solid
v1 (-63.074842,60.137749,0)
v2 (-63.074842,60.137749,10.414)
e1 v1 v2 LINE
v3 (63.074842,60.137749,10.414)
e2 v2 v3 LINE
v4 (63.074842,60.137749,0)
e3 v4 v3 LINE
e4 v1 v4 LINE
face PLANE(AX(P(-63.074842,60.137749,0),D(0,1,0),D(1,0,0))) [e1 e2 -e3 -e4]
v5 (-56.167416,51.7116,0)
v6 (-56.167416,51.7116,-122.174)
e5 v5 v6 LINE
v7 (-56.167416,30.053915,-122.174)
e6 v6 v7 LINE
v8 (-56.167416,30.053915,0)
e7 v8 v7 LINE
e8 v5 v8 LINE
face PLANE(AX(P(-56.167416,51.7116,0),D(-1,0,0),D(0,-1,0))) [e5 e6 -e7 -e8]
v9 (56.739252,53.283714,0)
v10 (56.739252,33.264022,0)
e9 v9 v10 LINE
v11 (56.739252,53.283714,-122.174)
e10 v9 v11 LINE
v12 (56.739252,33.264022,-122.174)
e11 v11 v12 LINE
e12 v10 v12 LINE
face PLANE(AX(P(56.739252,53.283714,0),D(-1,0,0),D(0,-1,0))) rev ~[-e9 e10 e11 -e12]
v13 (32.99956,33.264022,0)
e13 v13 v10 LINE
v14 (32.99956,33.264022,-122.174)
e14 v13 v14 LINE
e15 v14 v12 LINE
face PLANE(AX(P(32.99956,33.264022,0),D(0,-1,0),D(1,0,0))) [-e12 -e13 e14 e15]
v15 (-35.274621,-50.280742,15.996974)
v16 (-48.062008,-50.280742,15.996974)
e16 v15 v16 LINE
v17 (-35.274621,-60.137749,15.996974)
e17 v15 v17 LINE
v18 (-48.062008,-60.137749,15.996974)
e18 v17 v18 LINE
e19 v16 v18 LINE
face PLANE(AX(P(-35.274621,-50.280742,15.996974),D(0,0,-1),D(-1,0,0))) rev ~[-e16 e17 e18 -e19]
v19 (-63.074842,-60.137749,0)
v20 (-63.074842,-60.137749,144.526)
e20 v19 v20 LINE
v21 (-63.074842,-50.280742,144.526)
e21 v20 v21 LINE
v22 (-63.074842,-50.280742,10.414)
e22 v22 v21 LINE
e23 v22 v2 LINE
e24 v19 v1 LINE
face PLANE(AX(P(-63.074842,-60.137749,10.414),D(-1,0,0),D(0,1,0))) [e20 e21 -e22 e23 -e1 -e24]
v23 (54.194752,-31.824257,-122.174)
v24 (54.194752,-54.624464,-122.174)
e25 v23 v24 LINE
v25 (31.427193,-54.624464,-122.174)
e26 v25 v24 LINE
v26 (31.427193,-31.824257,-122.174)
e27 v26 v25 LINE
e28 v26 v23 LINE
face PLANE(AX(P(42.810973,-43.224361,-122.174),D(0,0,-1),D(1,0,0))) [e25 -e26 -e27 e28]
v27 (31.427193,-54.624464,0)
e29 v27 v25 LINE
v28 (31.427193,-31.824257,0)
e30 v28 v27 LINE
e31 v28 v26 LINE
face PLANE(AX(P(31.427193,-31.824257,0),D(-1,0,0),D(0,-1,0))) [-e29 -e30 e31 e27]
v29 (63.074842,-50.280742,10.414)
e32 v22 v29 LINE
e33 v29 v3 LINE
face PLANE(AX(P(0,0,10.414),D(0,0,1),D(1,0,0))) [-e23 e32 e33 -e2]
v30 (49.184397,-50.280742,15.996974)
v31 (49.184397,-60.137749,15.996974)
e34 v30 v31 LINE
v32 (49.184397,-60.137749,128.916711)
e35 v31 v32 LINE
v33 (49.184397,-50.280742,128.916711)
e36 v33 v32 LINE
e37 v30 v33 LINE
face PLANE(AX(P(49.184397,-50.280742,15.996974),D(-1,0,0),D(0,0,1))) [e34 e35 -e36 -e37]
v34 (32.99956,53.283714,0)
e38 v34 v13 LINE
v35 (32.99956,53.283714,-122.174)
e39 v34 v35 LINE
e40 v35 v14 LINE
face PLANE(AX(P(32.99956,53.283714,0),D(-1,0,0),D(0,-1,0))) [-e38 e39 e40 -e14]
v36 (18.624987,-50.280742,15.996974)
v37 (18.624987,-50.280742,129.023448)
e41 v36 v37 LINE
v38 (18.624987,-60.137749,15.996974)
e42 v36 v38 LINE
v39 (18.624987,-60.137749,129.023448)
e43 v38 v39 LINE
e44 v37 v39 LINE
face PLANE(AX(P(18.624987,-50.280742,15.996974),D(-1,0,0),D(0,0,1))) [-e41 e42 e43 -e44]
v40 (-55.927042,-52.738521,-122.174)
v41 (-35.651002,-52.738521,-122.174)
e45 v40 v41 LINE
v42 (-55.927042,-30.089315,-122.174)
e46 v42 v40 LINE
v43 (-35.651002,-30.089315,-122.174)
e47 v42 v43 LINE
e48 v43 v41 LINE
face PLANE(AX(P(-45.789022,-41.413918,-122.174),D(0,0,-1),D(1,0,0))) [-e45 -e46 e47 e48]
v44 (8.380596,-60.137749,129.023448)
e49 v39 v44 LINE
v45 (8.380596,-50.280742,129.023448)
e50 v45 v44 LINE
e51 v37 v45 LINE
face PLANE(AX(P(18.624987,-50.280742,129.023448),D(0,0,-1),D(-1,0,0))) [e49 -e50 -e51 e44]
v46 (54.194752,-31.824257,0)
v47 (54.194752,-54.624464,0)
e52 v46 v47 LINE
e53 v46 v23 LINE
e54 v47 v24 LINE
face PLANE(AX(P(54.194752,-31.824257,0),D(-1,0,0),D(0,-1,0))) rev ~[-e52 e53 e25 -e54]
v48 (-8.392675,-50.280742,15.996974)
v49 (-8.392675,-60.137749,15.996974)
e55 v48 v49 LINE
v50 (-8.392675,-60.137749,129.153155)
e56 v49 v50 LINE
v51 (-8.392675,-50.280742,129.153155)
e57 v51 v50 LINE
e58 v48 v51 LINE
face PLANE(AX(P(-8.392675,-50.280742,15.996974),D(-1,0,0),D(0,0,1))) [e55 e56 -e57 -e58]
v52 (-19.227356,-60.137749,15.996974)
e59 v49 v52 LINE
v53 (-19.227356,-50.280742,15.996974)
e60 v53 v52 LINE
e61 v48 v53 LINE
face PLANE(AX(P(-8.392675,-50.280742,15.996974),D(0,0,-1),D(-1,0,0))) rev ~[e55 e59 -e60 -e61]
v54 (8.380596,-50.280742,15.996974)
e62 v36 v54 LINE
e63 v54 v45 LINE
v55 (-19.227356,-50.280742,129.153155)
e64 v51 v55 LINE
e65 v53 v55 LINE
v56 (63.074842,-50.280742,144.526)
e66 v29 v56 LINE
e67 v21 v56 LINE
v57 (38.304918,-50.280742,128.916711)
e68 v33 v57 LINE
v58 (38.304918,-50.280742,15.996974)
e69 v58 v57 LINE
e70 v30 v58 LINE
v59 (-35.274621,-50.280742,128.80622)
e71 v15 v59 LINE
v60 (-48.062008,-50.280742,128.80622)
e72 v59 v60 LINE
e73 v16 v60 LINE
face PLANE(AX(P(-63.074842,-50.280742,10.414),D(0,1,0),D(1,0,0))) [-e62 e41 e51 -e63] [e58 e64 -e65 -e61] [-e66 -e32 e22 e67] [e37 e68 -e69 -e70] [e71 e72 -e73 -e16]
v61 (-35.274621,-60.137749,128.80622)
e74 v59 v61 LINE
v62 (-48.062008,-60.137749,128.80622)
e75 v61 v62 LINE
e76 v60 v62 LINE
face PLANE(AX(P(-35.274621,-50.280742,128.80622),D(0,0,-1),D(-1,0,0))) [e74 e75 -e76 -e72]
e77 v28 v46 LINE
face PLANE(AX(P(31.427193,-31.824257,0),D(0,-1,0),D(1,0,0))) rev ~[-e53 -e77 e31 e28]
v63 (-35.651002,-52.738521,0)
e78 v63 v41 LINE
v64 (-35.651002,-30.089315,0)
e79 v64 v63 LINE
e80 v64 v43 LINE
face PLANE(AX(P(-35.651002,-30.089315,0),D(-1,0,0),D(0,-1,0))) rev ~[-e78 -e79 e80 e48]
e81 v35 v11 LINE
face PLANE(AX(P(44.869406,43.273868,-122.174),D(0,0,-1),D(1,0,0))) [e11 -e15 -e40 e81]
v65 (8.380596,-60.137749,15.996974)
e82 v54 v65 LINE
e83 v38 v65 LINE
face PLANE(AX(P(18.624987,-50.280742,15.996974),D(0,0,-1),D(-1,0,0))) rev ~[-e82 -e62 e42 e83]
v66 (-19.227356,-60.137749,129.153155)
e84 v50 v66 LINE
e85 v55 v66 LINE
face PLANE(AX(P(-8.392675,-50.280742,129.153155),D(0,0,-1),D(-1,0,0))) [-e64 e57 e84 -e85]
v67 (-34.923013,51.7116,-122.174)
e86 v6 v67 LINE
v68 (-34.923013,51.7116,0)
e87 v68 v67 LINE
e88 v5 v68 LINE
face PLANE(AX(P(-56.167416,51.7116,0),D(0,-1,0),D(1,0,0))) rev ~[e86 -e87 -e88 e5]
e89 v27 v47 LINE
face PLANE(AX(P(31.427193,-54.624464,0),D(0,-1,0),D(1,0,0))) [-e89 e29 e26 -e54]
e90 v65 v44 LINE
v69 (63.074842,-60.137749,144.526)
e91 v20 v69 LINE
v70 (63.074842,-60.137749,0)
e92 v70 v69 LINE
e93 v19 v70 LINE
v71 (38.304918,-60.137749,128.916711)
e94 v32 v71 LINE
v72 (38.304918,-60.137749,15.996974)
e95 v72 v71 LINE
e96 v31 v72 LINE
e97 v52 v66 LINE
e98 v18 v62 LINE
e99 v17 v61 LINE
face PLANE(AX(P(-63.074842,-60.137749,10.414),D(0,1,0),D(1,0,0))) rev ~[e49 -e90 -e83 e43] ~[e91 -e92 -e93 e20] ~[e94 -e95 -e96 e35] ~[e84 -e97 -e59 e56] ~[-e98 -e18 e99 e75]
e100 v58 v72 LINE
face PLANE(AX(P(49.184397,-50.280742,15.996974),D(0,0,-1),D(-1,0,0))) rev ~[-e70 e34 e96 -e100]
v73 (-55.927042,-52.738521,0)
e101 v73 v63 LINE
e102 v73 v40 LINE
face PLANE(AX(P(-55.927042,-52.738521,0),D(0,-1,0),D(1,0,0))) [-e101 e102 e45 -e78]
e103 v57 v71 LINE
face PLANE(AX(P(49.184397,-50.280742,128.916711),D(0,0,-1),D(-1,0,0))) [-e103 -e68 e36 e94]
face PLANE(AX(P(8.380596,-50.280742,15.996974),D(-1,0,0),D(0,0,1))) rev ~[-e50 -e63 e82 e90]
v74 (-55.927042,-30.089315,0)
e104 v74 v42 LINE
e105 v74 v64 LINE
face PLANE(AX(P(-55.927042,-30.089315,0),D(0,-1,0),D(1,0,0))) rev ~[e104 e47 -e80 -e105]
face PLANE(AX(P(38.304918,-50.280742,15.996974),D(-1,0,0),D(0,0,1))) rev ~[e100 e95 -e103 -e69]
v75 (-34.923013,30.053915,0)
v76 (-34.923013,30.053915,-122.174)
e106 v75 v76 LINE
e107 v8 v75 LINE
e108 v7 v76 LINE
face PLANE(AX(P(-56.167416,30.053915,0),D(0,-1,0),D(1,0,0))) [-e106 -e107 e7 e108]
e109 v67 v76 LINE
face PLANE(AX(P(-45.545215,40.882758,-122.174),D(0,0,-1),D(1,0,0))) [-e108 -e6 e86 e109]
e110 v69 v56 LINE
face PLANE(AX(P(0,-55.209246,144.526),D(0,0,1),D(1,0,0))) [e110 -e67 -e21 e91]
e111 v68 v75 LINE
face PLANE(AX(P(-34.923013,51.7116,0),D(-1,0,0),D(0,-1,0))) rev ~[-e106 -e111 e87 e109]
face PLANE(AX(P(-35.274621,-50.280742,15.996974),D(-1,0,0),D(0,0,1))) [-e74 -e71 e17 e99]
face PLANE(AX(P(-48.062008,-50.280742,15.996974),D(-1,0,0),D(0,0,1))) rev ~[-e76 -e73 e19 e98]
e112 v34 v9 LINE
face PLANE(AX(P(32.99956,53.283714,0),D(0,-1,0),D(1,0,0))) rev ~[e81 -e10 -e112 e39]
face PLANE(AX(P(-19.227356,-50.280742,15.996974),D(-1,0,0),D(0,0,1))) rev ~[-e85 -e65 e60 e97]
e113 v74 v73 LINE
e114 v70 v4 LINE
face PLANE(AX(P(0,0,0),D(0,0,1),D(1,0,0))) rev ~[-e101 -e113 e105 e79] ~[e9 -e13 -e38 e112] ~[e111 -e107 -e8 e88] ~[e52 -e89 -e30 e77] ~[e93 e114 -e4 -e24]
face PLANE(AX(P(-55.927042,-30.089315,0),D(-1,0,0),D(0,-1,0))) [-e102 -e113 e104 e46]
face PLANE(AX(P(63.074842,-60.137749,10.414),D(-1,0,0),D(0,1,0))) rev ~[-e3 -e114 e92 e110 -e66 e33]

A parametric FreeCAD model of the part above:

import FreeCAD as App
import Part
import Sketcher
from FreeCAD import Vector
Q = App.Units.Quantity

doc = App.newDocument("Part")
body = doc.addObject("PartDesign::Body", "Body")

# Sketch on XY plane
sketch1 = doc.addObject("Sketcher::SketchObject", "Sketch")
body.addObject(sketch1)
sketch1.AttachmentSupport = (doc.XY_Plane, [""])
sketch1.MapMode = "FlatFace"
sketch1.addGeometry(Part.LineSegment(Vector(-63, 60, 0), Vector(-63, -60, 0)), False)
sketch1.addGeometry(Part.LineSegment(Vector(-63, -60, 0), Vector(63, -60, 0)), False)
sketch1.addGeometry(Part.LineSegment(Vector(63, -60, 0), Vector(63, 60, 0)), False)
sketch1.addGeometry(Part.LineSegment(Vector(63, 60, 0), Vector(-63, 60, 0)), False)
sketch1.addConstraint(Sketcher.Constraint("Coincident", 0, 2, 1, 1))
sketch1.addConstraint(Sketcher.Constraint("Coincident", 1, 2, 2, 1))
sketch1.addConstraint(Sketcher.Constraint("Coincident", 2, 2, 3, 1))
sketch1.addConstraint(Sketcher.Constraint("Coincident", 3, 2, 0, 1))
sketch1.addConstraint(Sketcher.Constraint("Vertical", 0))
sketch1.addConstraint(Sketcher.Constraint("Horizontal", 1))
sketch1.addConstraint(Sketcher.Constraint("Vertical", 2))
sketch1.addConstraint(Sketcher.Constraint("Horizontal", 3))
sketch1.addConstraint(Sketcher.Constraint("Symmetric", 0, 2, 2, 2, -1, 1))
sketch1.addConstraint(Sketcher.Constraint("DistanceX", 1, 1, 1, 2, Q("126.149684 mm")))
sketch1.addConstraint(Sketcher.Constraint("DistanceY", 0, 2, 0, 1, Q("120.275497 mm")))
pad1 = doc.addObject("PartDesign::Pad", "Pad")
body.addObject(pad1)
pad1.Profile = sketch1
pad1.Length = Q("0.41 in")

# Sketch on XY plane
sketch2 = doc.addObject("Sketcher::SketchObject", "Sketch001")
body.addObject(sketch2)
sketch2.AttachmentSupport = (doc.XY_Plane, [""])
sketch2.MapMode = "FlatFace"
sketch2.addGeometry(Part.LineSegment(Vector(-56, -53, 0), Vector(-56, -30, 0)), False)
sketch2.addGeometry(Part.LineSegment(Vector(-56, -30, 0), Vector(-36, -30, 0)), False)
sketch2.addGeometry(Part.LineSegment(Vector(-36, -30, 0), Vector(-36, -53, 0)), False)
sketch2.addGeometry(Part.LineSegment(Vector(-36, -53, 0), Vector(-56, -53, 0)), False)
sketch2.addConstraint(Sketcher.Constraint("Coincident", 0, 2, 1, 1))
sketch2.addConstraint(Sketcher.Constraint("Coincident", 1, 2, 2, 1))
sketch2.addConstraint(Sketcher.Constraint("Coincident", 2, 2, 3, 1))
sketch2.addConstraint(Sketcher.Constraint("Coincident", 3, 2, 0, 1))
sketch2.addConstraint(Sketcher.Constraint("Vertical", 0))
sketch2.addConstraint(Sketcher.Constraint("Horizontal", 1))
sketch2.addConstraint(Sketcher.Constraint("Vertical", 2))
sketch2.addConstraint(Sketcher.Constraint("Horizontal", 3))
sketch2.addConstraint(Sketcher.Constraint("DistanceX", 1, 1, 1, 2, Q("20.27604 mm")))
sketch2.addConstraint(Sketcher.Constraint("DistanceY", 0, 1, 0, 2, Q("22.649206 mm")))
sketch2.addConstraint(Sketcher.Constraint("DistanceX", 0, 2, -1, 1, Q("55.927042 mm")))
sketch2.addConstraint(Sketcher.Constraint("DistanceY", 2, 2, -1, 1, Q("52.738521 mm")))
pad2 = doc.addObject("PartDesign::Pad", "Pad001")
body.addObject(pad2)
pad2.Profile = sketch2
pad2.Length = Q("4.81 in")
pad2.Reversed = True

# Sketch on XY plane
sketch3 = doc.addObject("Sketcher::SketchObject", "Sketch002")
body.addObject(sketch3)
sketch3.AttachmentSupport = (doc.XY_Plane, [""])
sketch3.MapMode = "FlatFace"
sketch3.addGeometry(Part.LineSegment(Vector(31, -55, 0), Vector(31, -32, 0)), False)
sketch3.addGeometry(Part.LineSegment(Vector(31, -32, 0), Vector(54, -32, 0)), False)
sketch3.addGeometry(Part.LineSegment(Vector(54, -32, 0), Vector(54, -55, 0)), False)
sketch3.addGeometry(Part.LineSegment(Vector(54, -55, 0), Vector(31, -55, 0)), False)
sketch3.addConstraint(Sketcher.Constraint("Coincident", 0, 2, 1, 1))
sketch3.addConstraint(Sketcher.Constraint("Coincident", 1, 2, 2, 1))
sketch3.addConstraint(Sketcher.Constraint("Coincident", 2, 2, 3, 1))
sketch3.addConstraint(Sketcher.Constraint("Coincident", 3, 2, 0, 1))
sketch3.addConstraint(Sketcher.Constraint("Vertical", 0))
sketch3.addConstraint(Sketcher.Constraint("Horizontal", 1))
sketch3.addConstraint(Sketcher.Constraint("Vertical", 2))
sketch3.addConstraint(Sketcher.Constraint("Horizontal", 3))
sketch3.addConstraint(Sketcher.Constraint("DistanceX", 1, 1, 1, 2, Q("22.767559 mm")))
sketch3.addConstraint(Sketcher.Constraint("DistanceY", 0, 1, 0, 2, Q("22.800207 mm")))
sketch3.addConstraint(Sketcher.Constraint("DistanceX", -1, 1, 0, 2, Q("31.427193 mm")))
sketch3.addConstraint(Sketcher.Constraint("DistanceY", 0, 2, -1, 1, Q("31.824257 mm")))
pad3 = doc.addObject("PartDesign::Pad", "Pad002")
body.addObject(pad3)
pad3.Profile = sketch3
pad3.Length = Q("4.81 in")
pad3.Reversed = True

# Sketch on XY plane
sketch4 = doc.addObject("Sketcher::SketchObject", "Sketch003")
body.addObject(sketch4)
sketch4.AttachmentSupport = (doc.XY_Plane, [""])
sketch4.MapMode = "FlatFace"
sketch4.addGeometry(Part.LineSegment(Vector(33, 33, 0), Vector(33, 53, 0)), False)
sketch4.addGeometry(Part.LineSegment(Vector(33, 53, 0), Vector(57, 53, 0)), False)
sketch4.addGeometry(Part.LineSegment(Vector(57, 53, 0), Vector(57, 33, 0)), False)
sketch4.addGeometry(Part.LineSegment(Vector(57, 33, 0), Vector(33, 33, 0)), False)
sketch4.addConstraint(Sketcher.Constraint("Coincident", 0, 2, 1, 1))
sketch4.addConstraint(Sketcher.Constraint("Coincident", 1, 2, 2, 1))
sketch4.addConstraint(Sketcher.Constraint("Coincident", 2, 2, 3, 1))
sketch4.addConstraint(Sketcher.Constraint("Coincident", 3, 2, 0, 1))
sketch4.addConstraint(Sketcher.Constraint("Vertical", 0))
sketch4.addConstraint(Sketcher.Constraint("Horizontal", 1))
sketch4.addConstraint(Sketcher.Constraint("Vertical", 2))
sketch4.addConstraint(Sketcher.Constraint("Horizontal", 3))
sketch4.addConstraint(Sketcher.Constraint("DistanceX", 1, 1, 1, 2, Q("23.739692 mm")))
sketch4.addConstraint(Sketcher.Constraint("DistanceY", 0, 1, 0, 2, Q("20.019691 mm")))
sketch4.addConstraint(Sketcher.Constraint("DistanceX", -1, 1, 0, 2, Q("32.99956 mm")))
sketch4.addConstraint(Sketcher.Constraint("DistanceY", -1, 1, 0, 2, Q("53.283714 mm")))
pad4 = doc.addObject("PartDesign::Pad", "Pad003")
body.addObject(pad4)
pad4.Profile = sketch4
pad4.Length = Q("4.81 in")
pad4.Reversed = True

# Sketch on XY plane
sketch5 = doc.addObject("Sketcher::SketchObject", "Sketch004")
body.addObject(sketch5)
sketch5.AttachmentSupport = (doc.XY_Plane, [""])
sketch5.MapMode = "FlatFace"
sketch5.addGeometry(Part.LineSegment(Vector(-56, 30, 0), Vector(-56, 52, 0)), False)
sketch5.addGeometry(Part.LineSegment(Vector(-56, 52, 0), Vector(-35, 52, 0)), False)
sketch5.addGeometry(Part.LineSegment(Vector(-35, 52, 0), Vector(-35, 30, 0)), False)
sketch5.addGeometry(Part.LineSegment(Vector(-35, 30, 0), Vector(-56, 30, 0)), False)
sketch5.addConstraint(Sketcher.Constraint("Coincident", 0, 2, 1, 1))
sketch5.addConstraint(Sketcher.Constraint("Coincident", 1, 2, 2, 1))
sketch5.addConstraint(Sketcher.Constraint("Coincident", 2, 2, 3, 1))
sketch5.addConstraint(Sketcher.Constraint("Coincident", 3, 2, 0, 1))
sketch5.addConstraint(Sketcher.Constraint("Vertical", 0))
sketch5.addConstraint(Sketcher.Constraint("Horizontal", 1))
sketch5.addConstraint(Sketcher.Constraint("Vertical", 2))
sketch5.addConstraint(Sketcher.Constraint("Horizontal", 3))
sketch5.addConstraint(Sketcher.Constraint("DistanceY", -1, 1, 0, 2, Q("51.7116 mm")))
sketch5.addConstraint(Sketcher.Constraint("DistanceX", 1, 1, 1, 2, Q("21.244403 mm")))
sketch5.addConstraint(Sketcher.Constraint("DistanceY", 0, 1, 0, 2, Q("21.657685 mm")))
sketch5.addConstraint(Sketcher.Constraint("DistanceX", 0, 2, -1, 1, Q("56.167416 mm")))
pad5 = doc.addObject("PartDesign::Pad", "Pad004")
body.addObject(pad5)
pad5.Profile = sketch5
pad5.Length = Q("4.81 in")
pad5.Reversed = True

# Sketch on XY plane
sketch6 = doc.addObject("Sketcher::SketchObject", "Sketch005")
body.addObject(sketch6)
sketch6.AttachmentSupport = (doc.XY_Plane, [""])
sketch6.MapMode = "FlatFace"
sketch6.AttachmentOffset = App.Placement(Vector(0, 0, 0.41 * 25.4), App.Rotation())
sketch6.addGeometry(Part.LineSegment(Vector(-63, -50, 0), Vector(-63, -60, 0)), False)
sketch6.addGeometry(Part.LineSegment(Vector(-63, -60, 0), Vector(63, -60, 0)), False)
sketch6.addGeometry(Part.LineSegment(Vector(63, -60, 0), Vector(63, -50, 0)), False)
sketch6.addGeometry(Part.LineSegment(Vector(63, -50, 0), Vector(-63, -50, 0)), False)
sketch6.addConstraint(Sketcher.Constraint("Coincident", 0, 2, 1, 1))
sketch6.addConstraint(Sketcher.Constraint("Coincident", 1, 2, 2, 1))
sketch6.addConstraint(Sketcher.Constraint("Coincident", 2, 2, 3, 1))
sketch6.addConstraint(Sketcher.Constraint("Coincident", 3, 2, 0, 1))
sketch6.addConstraint(Sketcher.Constraint("Vertical", 0))
sketch6.addConstraint(Sketcher.Constraint("Horizontal", 1))
sketch6.addConstraint(Sketcher.Constraint("Vertical", 2))
sketch6.addConstraint(Sketcher.Constraint("Horizontal", 3))
sketch6.addConstraint(Sketcher.Constraint("DistanceX", 1, 1, 1, 2, Q("126.149684 mm")))
sketch6.addConstraint(Sketcher.Constraint("DistanceY", 0, 2, 0, 1, Q("9.857006 mm")))
sketch6.addConstraint(Sketcher.Constraint("DistanceY", 0, 2, -1, 1, Q("60.137749 mm")))
sketch6.addConstraint(Sketcher.Constraint("DistanceX", 0, 2, -1, 1, Q("63.074842 mm")))
pad6 = doc.addObject("PartDesign::Pad", "Pad005")
body.addObject(pad6)
pad6.Profile = sketch6
pad6.Length = Q("5.28 in")

# Sketch on XZ plane
sketch7 = doc.addObject("Sketcher::SketchObject", "Sketch006")
body.addObject(sketch7)
sketch7.AttachmentSupport = (doc.XZ_Plane, [""])
sketch7.MapMode = "FlatFace"
sketch7.AttachmentOffset = App.Placement(Vector(0, 0, 50.280742), App.Rotation())
sketch7.addGeometry(Part.LineSegment(Vector(49, 129, 0), Vector(49, 16, 0)), False)
sketch7.addGeometry(Part.LineSegment(Vector(49, 16, 0), Vector(38, 16, 0)), False)
sketch7.addGeometry(Part.LineSegment(Vector(38, 16, 0), Vector(38, 129, 0)), False)
sketch7.addGeometry(Part.LineSegment(Vector(38, 129, 0), Vector(49, 129, 0)), False)
sketch7.addGeometry(Part.LineSegment(Vector(19, 129, 0), Vector(19, 16, 0)), False)
sketch7.addGeometry(Part.LineSegment(Vector(19, 16, 0), Vector(8, 16, 0)), False)
sketch7.addGeometry(Part.LineSegment(Vector(8, 16, 0), Vector(8, 129, 0)), False)
sketch7.addGeometry(Part.LineSegment(Vector(8, 129, 0), Vector(19, 129, 0)), False)
sketch7.addGeometry(Part.LineSegment(Vector(-8, 129, 0), Vector(-8, 16, 0)), False)
sketch7.addGeometry(Part.LineSegment(Vector(-8, 16, 0), Vector(-19, 16, 0)), False)
sketch7.addGeometry(Part.LineSegment(Vector(-19, 16, 0), Vector(-19, 129, 0)), False)
sketch7.addGeometry(Part.LineSegment(Vector(-19, 129, 0), Vector(-8, 129, 0)), False)
sketch7.addGeometry(Part.LineSegment(Vector(-35, 129, 0), Vector(-35, 16, 0)), False)
sketch7.addGeometry(Part.LineSegment(Vector(-35, 16, 0), Vector(-48, 16, 0)), False)
sketch7.addGeometry(Part.LineSegment(Vector(-48, 16, 0), Vector(-48, 129, 0)), False)
sketch7.addGeometry(Part.LineSegment(Vector(-48, 129, 0), Vector(-35, 129, 0)), False)
sketch7.addConstraint(Sketcher.Constraint("Coincident", 0, 2, 1, 1))
sketch7.addConstraint(Sketcher.Constraint("Coincident", 1, 2, 2, 1))
sketch7.addConstraint(Sketcher.Constraint("Coincident", 2, 2, 3, 1))
sketch7.addConstraint(Sketcher.Constraint("Coincident", 3, 2, 0, 1))
sketch7.addConstraint(Sketcher.Constraint("Coincident", 4, 2, 5, 1))
sketch7.addConstraint(Sketcher.Constraint("Coincident", 5, 2, 6, 1))
sketch7.addConstraint(Sketcher.Constraint("Coincident", 6, 2, 7, 1))
sketch7.addConstraint(Sketcher.Constraint("Coincident", 7, 2, 4, 1))
sketch7.addConstraint(Sketcher.Constraint("Coincident", 8, 2, 9, 1))
sketch7.addConstraint(Sketcher.Constraint("Coincident", 9, 2, 10, 1))
sketch7.addConstraint(Sketcher.Constraint("Coincident", 10, 2, 11, 1))
sketch7.addConstraint(Sketcher.Constraint("Coincident", 11, 2, 8, 1))
sketch7.addConstraint(Sketcher.Constraint("Coincident", 12, 2, 13, 1))
sketch7.addConstraint(Sketcher.Constraint("Coincident", 13, 2, 14, 1))
sketch7.addConstraint(Sketcher.Constraint("Coincident", 14, 2, 15, 1))
sketch7.addConstraint(Sketcher.Constraint("Coincident", 15, 2, 12, 1))
sketch7.addConstraint(Sketcher.Constraint("Vertical", 0))
sketch7.addConstraint(Sketcher.Constraint("Horizontal", 1))
sketch7.addConstraint(Sketcher.Constraint("Vertical", 2))
sketch7.addConstraint(Sketcher.Constraint("Horizontal", 3))
sketch7.addConstraint(Sketcher.Constraint("Vertical", 4))
sketch7.addConstraint(Sketcher.Constraint("Horizontal", 5))
sketch7.addConstraint(Sketcher.Constraint("Vertical", 6))
sketch7.addConstraint(Sketcher.Constraint("Horizontal", 7))
sketch7.addConstraint(Sketcher.Constraint("Vertical", 8))
sketch7.addConstraint(Sketcher.Constraint("Horizontal", 9))
sketch7.addConstraint(Sketcher.Constraint("Vertical", 10))
sketch7.addConstraint(Sketcher.Constraint("Horizontal", 11))
sketch7.addConstraint(Sketcher.Constraint("Vertical", 12))
sketch7.addConstraint(Sketcher.Constraint("Horizontal", 13))
sketch7.addConstraint(Sketcher.Constraint("Vertical", 14))
sketch7.addConstraint(Sketcher.Constraint("Horizontal", 15))
sketch7.addConstraint(Sketcher.Constraint("Horizontal", 1, 2, 4, 2))
sketch7.addConstraint(Sketcher.Constraint("Horizontal", 5, 2, 8, 2))
sketch7.addConstraint(Sketcher.Constraint("Horizontal", 9, 2, 12, 2))
sketch7.addConstraint(Sketcher.Constraint("DistanceX", 1, 2, 1, 1, Q("10.879479 mm")))
sketch7.addConstraint(Sketcher.Constraint("DistanceX", 5, 2, 5, 1, Q("10.244392 mm")))
sketch7.addConstraint(Sketcher.Constraint("DistanceX", 9, 2, 9, 1, Q("10.834681 mm")))
sketch7.addConstraint(Sketcher.Constraint("DistanceY", 8, 2, 8, 1, Q("113.156181 mm")))
sketch7.addConstraint(Sketcher.Constraint("DistanceX", 5, 2, 0, 2, Q("40.803801 mm")))
sketch7.addConstraint(Sketcher.Constraint("DistanceX", 13, 2, 13, 1, Q("12.787387 mm")))
sketch7.addConstraint(Sketcher.Constraint("DistanceY", 0, 2, 0, 1, Q("112.919737 mm")))
sketch7.addConstraint(Sketcher.Constraint("DistanceY", 4, 2, 4, 1, Q("113.026474 mm")))
sketch7.addConstraint(Sketcher.Constraint("DistanceY", 12, 2, 12, 1, Q("112.809246 mm")))
sketch7.addConstraint(Sketcher.Constraint("DistanceY", -1, 1, 2, 2, Q("128.916711 mm")))
sketch7.addConstraint(Sketcher.Constraint("DistanceX", 12, 2, -1, 1, Q("35.274621 mm")))
sketch7.addConstraint(Sketcher.Constraint("DistanceX", 8, 2, 5, 2, Q("16.77327 mm")))
sketch7.addConstraint(Sketcher.Constraint("DistanceX", 12, 2, 4, 2, Q("53.899609 mm")))
pocket1 = doc.addObject("PartDesign::Pocket", "Pocket")
body.addObject(pocket1)
pocket1.Profile = sketch7
pocket1.Length = Q("1 in")
pocket1.Reversed = True

doc.recompute()
